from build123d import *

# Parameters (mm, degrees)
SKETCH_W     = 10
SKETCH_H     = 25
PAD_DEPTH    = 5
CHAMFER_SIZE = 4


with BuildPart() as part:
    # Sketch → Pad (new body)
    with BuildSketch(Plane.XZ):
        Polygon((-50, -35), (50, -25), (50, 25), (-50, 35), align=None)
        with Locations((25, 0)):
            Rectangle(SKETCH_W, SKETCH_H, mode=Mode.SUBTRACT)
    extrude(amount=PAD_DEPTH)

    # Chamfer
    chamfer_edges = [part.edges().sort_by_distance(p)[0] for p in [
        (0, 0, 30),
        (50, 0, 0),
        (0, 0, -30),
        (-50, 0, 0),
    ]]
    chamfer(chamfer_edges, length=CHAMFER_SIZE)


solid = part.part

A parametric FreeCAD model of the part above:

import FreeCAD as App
import Part
import Sketcher
from FreeCAD import Vector
Q = App.Units.Quantity


def edges_at(feature, points):
    """Names of the edges that pass closest to the given points."""
    edges = feature.Shape.Edges
    near = lambda p: min(range(len(edges)), key=lambda i: edges[i].distToShape(Part.Vertex(*p))[0])
    return sorted({f"Edge{near(p) + 1}" for p in points})

doc = App.newDocument("Part")
body = doc.addObject("PartDesign::Body", "Body")

sketch1 = body.newObject("Sketcher::SketchObject", "Sketch")
sketch1.AttachmentSupport = (doc.getObject("XZ_Plane"), [""])
sketch1.MapMode = "FlatFace"
sketch1.addGeometry(Part.LineSegment(Vector(-50, -35, 0), Vector(50, -25, 0)), False)
sketch1.addGeometry(Part.LineSegment(Vector(50, -25, 0), Vector(50, 25, 0)), False)
sketch1.addGeometry(Part.LineSegment(Vector(50, 25, 0), Vector(-50, 35, 0)), False)
sketch1.addGeometry(Part.LineSegment(Vector(-50, 35, 0), Vector(-50, -35, 0)), False)
sketch1.addGeometry(Part.LineSegment(Vector(30, -12, 0), Vector(20, -12, 0)), False)
sketch1.addGeometry(Part.LineSegment(Vector(20, -12, 0), Vector(20, 12, 0)), False)
sketch1.addGeometry(Part.LineSegment(Vector(20, 12, 0), Vector(30, 12, 0)), False)
sketch1.addGeometry(Part.LineSegment(Vector(30, 12, 0), Vector(30, -12, 0)), False)
sketch1.addConstraint(Sketcher.Constraint("Coincident", 0, 2, 1, 1))
sketch1.addConstraint(Sketcher.Constraint("Coincident", 1, 2, 2, 1))
sketch1.addConstraint(Sketcher.Constraint("Coincident", 2, 2, 3, 1))
sketch1.addConstraint(Sketcher.Constraint("Coincident", 3, 2, 0, 1))
sketch1.addConstraint(Sketcher.Constraint("Coincident", 4, 2, 5, 1))
sketch1.addConstraint(Sketcher.Constraint("Coincident", 5, 2, 6, 1))
sketch1.addConstraint(Sketcher.Constraint("Coincident", 6, 2, 7, 1))
sketch1.addConstraint(Sketcher.Constraint("Coincident", 7, 2, 4, 1))
sketch1.addConstraint(Sketcher.Constraint("Vertical", 1))
sketch1.addConstraint(Sketcher.Constraint("Vertical", 3))
sketch1.addConstraint(Sketcher.Constraint("Horizontal", 4))
sketch1.addConstraint(Sketcher.Constraint("Vertical", 5))
sketch1.addConstraint(Sketcher.Constraint("Horizontal", 6))
sketch1.addConstraint(Sketcher.Constraint("Vertical", 7))
sketch1.addConstraint(Sketcher.Constraint("Equal", 0, 2))
sketch1.addConstraint(Sketcher.Constraint("DistanceX", 4, 2, 4, 1, Q("10 mm")))
sketch1.addConstraint(Sketcher.Constraint("DistanceY", 1, 1, 1, 2, Q("50 mm")))
sketch1.addConstraint(Sketcher.Constraint("DistanceY", 3, 2, 3, 1, Q("70 mm")))
sketch1.addConstraint(Sketcher.Constraint("DistanceY", 5, 1, 5, 2, Q("25 mm")))
sketch1.addConstraint(Sketcher.Constraint("DistanceX", -1, 1, 0, 2, Q("50 mm")))
sketch1.addConstraint(Sketcher.Constraint("DistanceY", 0, 2, -1, 1, Q("25 mm")))
sketch1.addConstraint(Sketcher.Constraint("DistanceX", 2, 2, -1, 1, Q("50 mm")))
sketch1.addConstraint(Sketcher.Constraint("DistanceX", -1, 1, 4, 2, Q("20 mm")))
sketch1.addConstraint(Sketcher.Constraint("DistanceY", 4, 2, -1, 1, Q("12.5 mm")))
pad1 = body.newObject("PartDesign::Pad", "Pad")
pad1.Profile = sketch1
pad1.Length = 5
doc.recompute()

chamfer = body.newObject("PartDesign::Chamfer", "Chamfer")
chamfer.Base = (pad1, edges_at(pad1, [
    (0, 0, 30),
    (50, 0, 0),
    (0, 0, -30),
    (-50, 0, 0),
]))
chamfer.Size = 4

doc.recompute()
